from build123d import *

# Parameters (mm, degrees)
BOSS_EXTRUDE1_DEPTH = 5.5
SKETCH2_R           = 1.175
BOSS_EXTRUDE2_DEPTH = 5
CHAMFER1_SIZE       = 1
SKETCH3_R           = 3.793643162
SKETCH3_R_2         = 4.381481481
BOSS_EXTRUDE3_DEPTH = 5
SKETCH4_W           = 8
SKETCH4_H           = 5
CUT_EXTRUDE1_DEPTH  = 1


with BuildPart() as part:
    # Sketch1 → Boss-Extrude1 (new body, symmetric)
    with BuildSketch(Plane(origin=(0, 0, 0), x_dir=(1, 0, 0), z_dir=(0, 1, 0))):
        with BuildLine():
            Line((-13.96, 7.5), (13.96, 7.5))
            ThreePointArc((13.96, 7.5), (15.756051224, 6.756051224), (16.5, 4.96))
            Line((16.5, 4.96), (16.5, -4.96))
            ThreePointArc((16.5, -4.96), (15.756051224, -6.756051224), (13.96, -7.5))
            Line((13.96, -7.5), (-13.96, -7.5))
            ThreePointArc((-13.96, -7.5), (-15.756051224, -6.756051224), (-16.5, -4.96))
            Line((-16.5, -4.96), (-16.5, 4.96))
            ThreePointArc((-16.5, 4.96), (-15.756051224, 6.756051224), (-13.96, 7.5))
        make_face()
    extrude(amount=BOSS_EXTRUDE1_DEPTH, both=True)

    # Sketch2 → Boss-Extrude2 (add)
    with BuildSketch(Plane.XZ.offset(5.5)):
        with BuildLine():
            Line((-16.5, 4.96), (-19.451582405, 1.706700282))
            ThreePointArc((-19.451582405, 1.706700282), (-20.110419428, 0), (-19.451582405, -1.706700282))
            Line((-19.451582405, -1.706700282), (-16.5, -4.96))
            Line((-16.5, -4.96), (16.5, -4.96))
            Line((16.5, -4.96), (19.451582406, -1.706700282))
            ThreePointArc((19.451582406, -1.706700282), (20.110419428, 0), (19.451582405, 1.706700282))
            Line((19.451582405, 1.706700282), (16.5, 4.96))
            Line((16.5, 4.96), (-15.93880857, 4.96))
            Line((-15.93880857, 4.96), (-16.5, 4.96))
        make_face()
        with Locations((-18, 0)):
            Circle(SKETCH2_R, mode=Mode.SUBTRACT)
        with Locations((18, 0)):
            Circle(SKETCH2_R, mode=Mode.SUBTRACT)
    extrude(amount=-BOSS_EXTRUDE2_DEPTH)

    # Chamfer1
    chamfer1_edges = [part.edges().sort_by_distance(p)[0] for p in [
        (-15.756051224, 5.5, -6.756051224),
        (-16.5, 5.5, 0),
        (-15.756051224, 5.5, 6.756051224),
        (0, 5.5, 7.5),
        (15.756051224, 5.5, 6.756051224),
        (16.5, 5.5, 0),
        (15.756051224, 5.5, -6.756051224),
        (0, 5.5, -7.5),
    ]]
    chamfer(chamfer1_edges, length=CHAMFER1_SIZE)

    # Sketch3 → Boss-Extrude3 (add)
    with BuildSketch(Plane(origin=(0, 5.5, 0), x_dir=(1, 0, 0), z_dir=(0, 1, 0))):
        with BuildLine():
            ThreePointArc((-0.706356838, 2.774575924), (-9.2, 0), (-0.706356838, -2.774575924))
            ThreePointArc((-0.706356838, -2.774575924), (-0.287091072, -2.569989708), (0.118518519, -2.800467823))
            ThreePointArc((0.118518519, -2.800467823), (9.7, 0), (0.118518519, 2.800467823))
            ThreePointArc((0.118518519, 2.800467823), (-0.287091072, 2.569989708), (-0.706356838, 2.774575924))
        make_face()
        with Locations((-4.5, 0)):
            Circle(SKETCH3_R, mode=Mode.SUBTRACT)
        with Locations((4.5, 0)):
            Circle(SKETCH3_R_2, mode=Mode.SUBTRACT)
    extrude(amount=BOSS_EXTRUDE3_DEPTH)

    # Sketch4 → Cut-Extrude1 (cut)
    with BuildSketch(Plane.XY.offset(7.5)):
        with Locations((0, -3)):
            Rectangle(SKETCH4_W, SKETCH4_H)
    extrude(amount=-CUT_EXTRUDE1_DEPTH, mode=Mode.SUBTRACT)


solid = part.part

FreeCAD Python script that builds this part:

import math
import FreeCAD as App
import Part
import Sketcher

V = App.Vector
Q = App.Units.Quantity


def edges_at(feature, points):
    """Names of the edges that pass closest to the given points."""
    edges = feature.Shape.Edges
    near = lambda p: min(range(len(edges)), key=lambda i: edges[i].distToShape(Part.Vertex(*p))[0])
    return sorted({f"Edge{near(p) + 1}" for p in points})

doc = App.newDocument("Part")
params = doc.addObject("Spreadsheet::Sheet", "Params")
for row, (alias, value) in enumerate([
    ("sketch1_radius", "2.54 mm"),
    ("sketch1_width", "27.92 mm"),
    ("pad1_length", "11 mm"),
    ("sketch2_diameter", "2.35 mm"),
    ("sketch2_width", "33 mm"),
    ("sketch2_radius", "2.54 mm"),
    ("pad2_length", "5 mm"),
    ("chamfer_size", "1 mm"),
    ("sketch3_radius", "4.7 mm"),
    ("sketch3_radius2", "0.5 mm"),
    ("sketch3_radius3", "5.2 mm"),
    ("pad3_length", "5 mm"),
    ("sketch4_width", "8 mm"),
    ("sketch4_height", "5 mm"),
    ("pocket1_length", "1 mm"),
], start=1):
    params.set(f"A{row}", alias)
    params.set(f"B{row}", "=" + value)
    params.setAlias(f"B{row}", alias)

body = doc.addObject("PartDesign::Body", "Body")

# Sketch on XZ plane
sketch1 = doc.addObject("Sketcher::SketchObject", "Sketch")
body.addObject(sketch1)
sketch1.AttachmentSupport = (doc.XZ_Plane, [""])
sketch1.MapMode = "FlatFace"
sketch1.addGeometry([
    Part.LineSegment(V(14, -7.5, 0), V(-14, -7.5, 0)),  # 0
    Part.ArcOfCircle(Part.Circle(V(-14, -5, 0), V(0, 0, 1), 2.5), math.radians(-180), math.radians(-90)),  # 1
    Part.LineSegment(V(-16.5, -5, 0), V(-16.5, 5, 0)),  # 2
    Part.ArcOfCircle(Part.Circle(V(-14, 5, 0), V(0, 0, 1), 2.5), math.radians(90), math.radians(180)),  # 3
    Part.LineSegment(V(-14, 7.5, 0), V(14, 7.5, 0)),  # 4
    Part.ArcOfCircle(Part.Circle(V(14, 5, 0), V(0, 0, 1), 2.5), math.radians(0), math.radians(90)),  # 5
    Part.LineSegment(V(16.5, 5, 0), V(16.5, -5, 0)),  # 6
    Part.ArcOfCircle(Part.Circle(V(14, -5, 0), V(0, 0, 1), 2.5), math.radians(-90), math.radians(0)),  # 7
], False)
sketch1.addConstraint([
    Sketcher.Constraint("Tangent", 0, 2, 1, 2),
    Sketcher.Constraint("Tangent", 1, 1, 2, 1),
    Sketcher.Constraint("Tangent", 2, 2, 3, 2),
    Sketcher.Constraint("Tangent", 3, 1, 4, 1),
    Sketcher.Constraint("Tangent", 4, 2, 5, 2),
    Sketcher.Constraint("Tangent", 5, 1, 6, 1),
    Sketcher.Constraint("Tangent", 6, 2, 7, 2),
    Sketcher.Constraint("Tangent", 7, 1, 0, 1),
    Sketcher.Constraint("Horizontal", 0),
    Sketcher.Constraint("Vertical", 2),
    Sketcher.Constraint("Horizontal", 4),
    Sketcher.Constraint("Vertical", 6),
    Sketcher.Constraint("Equal", 1, 3),
    Sketcher.Constraint("Equal", 3, 5),
    Sketcher.Constraint("Equal", 5, 7),
    Sketcher.Constraint("Symmetric", 1, 3, 5, 3, -1, 1),
    Sketcher.Constraint("Radius", 1, Q("2.54 mm")),
    Sketcher.Constraint("DistanceY", 0, 2, 3, 1, Q("15 mm")),
    Sketcher.Constraint("DistanceX", 0, 2, 0, 1, Q("27.92 mm")),
])
sketch1.setExpression("Constraints[16]", "Params.sketch1_radius")
sketch1.setExpression("Constraints[18]", "Params.sketch1_width")
pad1 = doc.addObject("PartDesign::Pad", "Pad")
body.addObject(pad1)
pad1.Profile = sketch1
pad1.setExpression("Length", "Params.pad1_length")
pad1.Midplane = True

# Sketch on XZ plane
sketch2 = doc.addObject("Sketcher::SketchObject", "Sketch001")
body.addObject(sketch2)
sketch2.AttachmentSupport = (doc.XZ_Plane, [""])
sketch2.MapMode = "FlatFace"
sketch2.AttachmentOffset = App.Placement(V(0, 0, 5.5), App.Rotation())
sketch2.addGeometry([
    Part.LineSegment(V(-16.5, 5, 0), V(-19.5, 1.7, 0)),  # 0
    Part.ArcOfCircle(Part.Circle(V(-17.6, 0, 0), V(0, 0, 1), 2.5), math.radians(138), math.radians(222)),  # 1
    Part.LineSegment(V(-19.5, -1.7, 0), V(-16.5, -5, 0)),  # 2
    Part.LineSegment(V(-16.5, -5, 0), V(16.5, -5, 0)),  # 3
    Part.LineSegment(V(16.5, -5, 0), V(19.5, -1.7, 0)),  # 4
    Part.ArcOfCircle(Part.Circle(V(17.6, 0, 0), V(0, 0, 1), 2.5), math.radians(-42), math.radians(42)),  # 5
    Part.LineSegment(V(19.5, 1.7, 0), V(16.5, 5, 0)),  # 6
    Part.LineSegment(V(16.5, 5, 0), V(-16.5, 5, 0)),  # 7
    Part.Circle(V(-18, 0, 0), V(0, 0, 1), 1.2),  # 8
    Part.Circle(V(18, 0, 0), V(0, 0, 1), 1.2),  # 9
], False)
sketch2.addConstraint([
    Sketcher.Constraint("Tangent", 0, 2, 1, 1),
    Sketcher.Constraint("Tangent", 1, 2, 2, 1),
    Sketcher.Constraint("Coincident", 2, 2, 3, 1),
    Sketcher.Constraint("Coincident", 3, 2, 4, 1),
    Sketcher.Constraint("Tangent", 4, 2, 5, 1),
    Sketcher.Constraint("Tangent", 5, 2, 6, 1),
    Sketcher.Constraint("Coincident", 6, 2, 7, 1),
    Sketcher.Constraint("Coincident", 7, 2, 0, 1),
    Sketcher.Constraint("Horizontal", 3),
    Sketcher.Constraint("Horizontal", 7),
    Sketcher.Constraint("Equal", 1, 5),
    Sketcher.Constraint("Equal", 8, 9),
    Sketcher.Constraint("Symmetric", 1, 3, 5, 3, -1, 1),
    Sketcher.Constraint("Symmetric", 8, 3, 9, 3, -1, 1),
    Sketcher.Constraint("Symmetric", 2, 2, 6, 2, -1, 1),
    Sketcher.Constraint("Symmetric", 1, 2, 4, 2, -2),
    Sketcher.Constraint("PointOnObject", 8, 3, -1),
    Sketcher.Constraint("Parallel", 0, 4),
    Sketcher.Constraint("Diameter", 8, Q("2.35 mm")),
    Sketcher.Constraint("DistanceX", 3, 1, 3, 2, Q("33 mm")),
    Sketcher.Constraint("Radius", 1, Q("2.54 mm")),
    Sketcher.Constraint("DistanceX", 8, 3, -1, 1, Q("18 mm")),
    Sketcher.Constraint("DistanceY", 2, 2, -1, 1, Q("4.96 mm")),
    Sketcher.Constraint("DistanceX", 0, 2, 5, 3, Q("37.022002 mm")),
])
sketch2.setExpression("Constraints[18]", "Params.sketch2_diameter")
sketch2.setExpression("Constraints[19]", "Params.sketch2_width")
sketch2.setExpression("Constraints[20]", "Params.sketch2_radius")
pad2 = doc.addObject("PartDesign::Pad", "Pad001")
body.addObject(pad2)
pad2.Profile = sketch2
pad2.setExpression("Length", "Params.pad2_length")
pad2.Reversed = True
doc.recompute()

chamfer = doc.addObject("PartDesign::Chamfer", "Chamfer")
body.addObject(chamfer)
chamfer.Base = (pad2, edges_at(pad2, [
    (-15.756, 5.5, -6.756),
    (-16.5, 5.5, 0),
    (-15.756, 5.5, 6.756),
    (0, 5.5, 7.5),
    (15.756, 5.5, 6.756),
    (16.5, 5.5, 0),
    (15.756, 5.5, -6.756),
    (0, 5.5, -7.5),
]))
chamfer.setExpression("Size", "Params.chamfer_size")

# Sketch on XZ plane
sketch3 = doc.addObject("Sketcher::SketchObject", "Sketch002")
body.addObject(sketch3)
sketch3.AttachmentSupport = (doc.XZ_Plane, [""])
sketch3.MapMode = "FlatFace"
sketch3.AttachmentOffset = App.Placement(V(0, 0, -5.5), App.Rotation())
sketch3.addGeometry([
    Part.ArcOfCircle(Part.Circle(V(-4.5, 0, 0), V(0, 0, 1), 4.7), math.radians(36), math.radians(324)),  # 0
    Part.ArcOfCircle(Part.Circle(V(-0.3, 3.1, 0), V(0, 0, 1), 0.5), math.radians(-144), math.radians(-33)),  # 1
    Part.ArcOfCircle(Part.Circle(V(4.5, 0, 0), V(0, 0, 1), 5.2), math.radians(-147), math.radians(147)),  # 2
    Part.ArcOfCircle(Part.Circle(V(-0.3, -3.1, 0), V(0, 0, 1), 0.5), math.radians(33), math.radians(144)),  # 3
    Part.Circle(V(-4.5, 0, 0), V(0, 0, 1), 3.8),  # 4
    Part.Circle(V(4.5, 0, 0), V(0, 0, 1), 4.4),  # 5
], False)
sketch3.addConstraint([
    Sketcher.Constraint("Tangent", 0, 1, 1, 1),
    Sketcher.Constraint("Tangent", 1, 2, 2, 2),
    Sketcher.Constraint("Tangent", 2, 1, 3, 1),
    Sketcher.Constraint("Tangent", 3, 2, 0, 2),
    Sketcher.Constraint("Coincident", 4, 3, 0, 3),
    Sketcher.Constraint("Coincident", 5, 3, 2, 3),
    Sketcher.Constraint("Equal", 1, 3),
    Sketcher.Constraint("Symmetric", 0, 3, 2, 3, -1, 1),
    Sketcher.Constraint("PointOnObject", 0, 3, -1),
    Sketcher.Constraint("Radius", 0, Q("4.7 mm")),
    Sketcher.Constraint("Radius", 1, Q("0.5 mm")),
    Sketcher.Constraint("Radius", 2, Q("5.2 mm")),
    Sketcher.Constraint("DistanceX", 0, 3, 2, 3, Q("9 mm")),
    Sketcher.Constraint("Diameter", 4, Q("7.587286 mm")),
    Sketcher.Constraint("Diameter", 5, Q("8.762963 mm")),
])
sketch3.setExpression("Constraints[9]", "Params.sketch3_radius")
sketch3.setExpression("Constraints[10]", "Params.sketch3_radius2")
sketch3.setExpression("Constraints[11]", "Params.sketch3_radius3")
pad3 = doc.addObject("PartDesign::Pad", "Pad002")
body.addObject(pad3)
pad3.Profile = sketch3
pad3.setExpression("Length", "Params.pad3_length")
pad3.Reversed = True

# Sketch on XY plane
sketch4 = doc.addObject("Sketcher::SketchObject", "Sketch003")
body.addObject(sketch4)
sketch4.AttachmentSupport = (doc.XY_Plane, [""])
sketch4.MapMode = "FlatFace"
sketch4.AttachmentOffset = App.Placement(V(0, 0, 7.5), App.Rotation())
sketch4.addGeometry([
    Part.LineSegment(V(-4, 0, 0), V(-4, -6, 0)),
    Part.LineSegment(V(-4, -6, 0), V(4, -6, 0)),
    Part.LineSegment(V(4, -6, 0), V(4, 0, 0)),
    Part.LineSegment(V(4, 0, 0), V(-4, 0, 0)),
], False)
sketch4.addConstraint([
    Sketcher.Constraint("Coincident", 0, 2, 1, 1),
    Sketcher.Constraint("Coincident", 1, 2, 2, 1),
    Sketcher.Constraint("Coincident", 2, 2, 3, 1),
    Sketcher.Constraint("Coincident", 3, 2, 0, 1),
    Sketcher.Constraint("Vertical", 0),
    Sketcher.Constraint("Horizontal", 1),
    Sketcher.Constraint("Vertical", 2),
    Sketcher.Constraint("Horizontal", 3),
    Sketcher.Constraint("DistanceX", 1, 1, 1, 2, Q("8 mm")),
    Sketcher.Constraint("DistanceY", 0, 2, 0, 1, Q("5 mm")),
    Sketcher.Constraint("DistanceX", 0, 2, -1, 1, Q("4 mm")),
    Sketcher.Constraint("DistanceY", 0, 2, -1, 1, Q("5.5 mm")),
])
sketch4.setExpression("Constraints[8]", "Params.sketch4_width")
sketch4.setExpression("Constraints[9]", "Params.sketch4_height")
pocket1 = doc.addObject("PartDesign::Pocket", "Pocket")
body.addObject(pocket1)
pocket1.Profile = sketch4
pocket1.setExpression("Length", "Params.pocket1_length")

doc.recompute()
